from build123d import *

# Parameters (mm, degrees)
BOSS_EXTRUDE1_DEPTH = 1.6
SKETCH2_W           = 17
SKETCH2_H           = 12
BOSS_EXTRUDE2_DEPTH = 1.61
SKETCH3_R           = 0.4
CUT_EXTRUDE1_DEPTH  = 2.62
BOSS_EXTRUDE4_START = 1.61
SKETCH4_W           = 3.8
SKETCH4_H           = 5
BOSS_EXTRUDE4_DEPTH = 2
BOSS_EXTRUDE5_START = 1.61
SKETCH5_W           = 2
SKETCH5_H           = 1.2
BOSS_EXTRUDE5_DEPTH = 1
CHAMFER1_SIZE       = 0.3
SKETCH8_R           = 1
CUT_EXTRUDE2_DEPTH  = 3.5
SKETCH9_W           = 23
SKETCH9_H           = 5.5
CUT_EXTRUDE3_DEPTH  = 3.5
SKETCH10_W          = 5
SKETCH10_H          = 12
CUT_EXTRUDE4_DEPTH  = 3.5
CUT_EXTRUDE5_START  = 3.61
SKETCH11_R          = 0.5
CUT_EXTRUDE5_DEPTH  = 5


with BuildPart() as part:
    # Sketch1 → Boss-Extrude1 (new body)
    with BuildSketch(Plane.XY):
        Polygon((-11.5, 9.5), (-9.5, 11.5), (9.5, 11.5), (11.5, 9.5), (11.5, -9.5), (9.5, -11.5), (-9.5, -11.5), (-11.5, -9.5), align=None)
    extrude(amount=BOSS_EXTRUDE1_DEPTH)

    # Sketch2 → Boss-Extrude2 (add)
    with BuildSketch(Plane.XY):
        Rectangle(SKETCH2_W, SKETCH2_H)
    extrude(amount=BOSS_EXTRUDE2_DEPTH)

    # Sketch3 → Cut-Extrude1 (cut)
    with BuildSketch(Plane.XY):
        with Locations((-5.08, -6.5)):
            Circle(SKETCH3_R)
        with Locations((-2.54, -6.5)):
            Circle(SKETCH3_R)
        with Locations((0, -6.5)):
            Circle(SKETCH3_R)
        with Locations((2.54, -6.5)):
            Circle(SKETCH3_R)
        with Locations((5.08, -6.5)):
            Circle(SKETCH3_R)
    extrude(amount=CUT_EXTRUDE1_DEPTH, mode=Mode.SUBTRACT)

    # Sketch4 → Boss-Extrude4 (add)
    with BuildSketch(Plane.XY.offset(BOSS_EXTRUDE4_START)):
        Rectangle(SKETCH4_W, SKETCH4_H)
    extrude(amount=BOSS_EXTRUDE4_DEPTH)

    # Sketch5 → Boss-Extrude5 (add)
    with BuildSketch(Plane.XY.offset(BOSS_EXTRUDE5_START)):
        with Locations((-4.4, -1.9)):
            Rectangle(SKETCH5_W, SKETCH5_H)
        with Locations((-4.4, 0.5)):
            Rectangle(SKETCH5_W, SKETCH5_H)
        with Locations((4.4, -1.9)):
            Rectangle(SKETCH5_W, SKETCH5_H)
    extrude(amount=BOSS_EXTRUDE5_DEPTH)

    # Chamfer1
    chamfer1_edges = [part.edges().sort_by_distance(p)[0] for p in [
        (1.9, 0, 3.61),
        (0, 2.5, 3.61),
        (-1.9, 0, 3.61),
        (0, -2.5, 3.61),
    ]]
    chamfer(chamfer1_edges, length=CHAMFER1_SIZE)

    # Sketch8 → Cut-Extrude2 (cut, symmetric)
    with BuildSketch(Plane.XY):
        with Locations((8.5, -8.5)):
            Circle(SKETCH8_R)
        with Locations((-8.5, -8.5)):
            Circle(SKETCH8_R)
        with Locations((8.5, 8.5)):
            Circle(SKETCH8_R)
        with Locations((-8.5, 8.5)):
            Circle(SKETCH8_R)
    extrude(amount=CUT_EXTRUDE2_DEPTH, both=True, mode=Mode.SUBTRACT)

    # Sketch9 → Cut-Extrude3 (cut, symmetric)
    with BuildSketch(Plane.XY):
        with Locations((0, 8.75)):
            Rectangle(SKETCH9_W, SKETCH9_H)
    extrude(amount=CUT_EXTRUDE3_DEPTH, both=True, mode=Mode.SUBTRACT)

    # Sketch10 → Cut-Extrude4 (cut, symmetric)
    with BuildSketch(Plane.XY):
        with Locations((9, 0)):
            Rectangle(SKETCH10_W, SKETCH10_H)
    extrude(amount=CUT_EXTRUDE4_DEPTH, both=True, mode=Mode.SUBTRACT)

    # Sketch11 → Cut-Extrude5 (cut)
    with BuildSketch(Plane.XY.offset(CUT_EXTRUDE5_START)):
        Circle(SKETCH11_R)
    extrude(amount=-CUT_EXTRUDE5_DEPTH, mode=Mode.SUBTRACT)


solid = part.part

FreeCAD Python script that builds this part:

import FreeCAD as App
import Part
import Sketcher
Q = App.Units.Quantity


def edges_at(feature, points):
    """Names of the edges that pass closest to the given points."""
    edges = feature.Shape.Edges
    near = lambda p: min(range(len(edges)), key=lambda i: edges[i].distToShape(Part.Vertex(*p))[0])
    return sorted({f"Edge{near(p) + 1}" for p in points})

doc = App.newDocument("Part")
body = doc.addObject("PartDesign::Body", "Body")

sketch1 = body.newObject("Sketcher::SketchObject", "Sketch")
sketch1.AttachmentSupport = (doc.getObject("XY_Plane"), [""])
sketch1.MapMode = "FlatFace"
sketch1.addGeometry(Part.LineSegment(App.Vector(-9.5, 11.5, 0), App.Vector(-11.5, 9.5, 0)), False)
sketch1.addGeometry(Part.LineSegment(App.Vector(-11.5, 9.5, 0), App.Vector(-11.5, -9.5, 0)), False)
sketch1.addGeometry(Part.LineSegment(App.Vector(-11.5, -9.5, 0), App.Vector(-9.5, -11.5, 0)), False)
sketch1.addGeometry(Part.LineSegment(App.Vector(-9.5, -11.5, 0), App.Vector(9.5, -11.5, 0)), False)
sketch1.addGeometry(Part.LineSegment(App.Vector(9.5, -11.5, 0), App.Vector(11.5, -9.5, 0)), False)
sketch1.addGeometry(Part.LineSegment(App.Vector(11.5, -9.5, 0), App.Vector(11.5, 9.5, 0)), False)
sketch1.addGeometry(Part.LineSegment(App.Vector(11.5, 9.5, 0), App.Vector(9.5, 11.5, 0)), False)
sketch1.addGeometry(Part.LineSegment(App.Vector(9.5, 11.5, 0), App.Vector(-9.5, 11.5, 0)), False)
sketch1.addConstraint(Sketcher.Constraint("Coincident", 0, 2, 1, 1))
sketch1.addConstraint(Sketcher.Constraint("Coincident", 1, 2, 2, 1))
sketch1.addConstraint(Sketcher.Constraint("Coincident", 2, 2, 3, 1))
sketch1.addConstraint(Sketcher.Constraint("Coincident", 3, 2, 4, 1))
sketch1.addConstraint(Sketcher.Constraint("Coincident", 4, 2, 5, 1))
sketch1.addConstraint(Sketcher.Constraint("Coincident", 5, 2, 6, 1))
sketch1.addConstraint(Sketcher.Constraint("Coincident", 6, 2, 7, 1))
sketch1.addConstraint(Sketcher.Constraint("Coincident", 7, 2, 0, 1))
sketch1.addConstraint(Sketcher.Constraint("Vertical", 1))
sketch1.addConstraint(Sketcher.Constraint("Horizontal", 3))
sketch1.addConstraint(Sketcher.Constraint("Vertical", 5))
sketch1.addConstraint(Sketcher.Constraint("Horizontal", 7))
sketch1.addConstraint(Sketcher.Constraint("Symmetric", 0, 2, 4, 2, -1, 1))
sketch1.addConstraint(Sketcher.Constraint("Symmetric", 2, 2, 6, 2, -1, 1))
sketch1.addConstraint(Sketcher.Constraint("Perpendicular", 0, 2))
sketch1.addConstraint(Sketcher.Constraint("Perpendicular", 2, 4))
sketch1.addConstraint(Sketcher.Constraint("Perpendicular", 4, 6))
sketch1.addConstraint(Sketcher.Constraint("Horizontal", 1, 2, 4, 2))
sketch1.addConstraint(Sketcher.Constraint("Vertical", 3, 2, 6, 2))
sketch1.addConstraint(Sketcher.Constraint("Equal", 7, 1))
sketch1.addConstraint(Sketcher.Constraint("DistanceX", 3, 1, 3, 2, Q("19 mm")))
sketch1.addConstraint(Sketcher.Constraint("DistanceX", 1, 2, 2, 2, Q("2 mm")))
pad1 = body.newObject("PartDesign::Pad", "Pad")
pad1.Profile = sketch1
pad1.Length = 1.6

sketch2 = body.newObject("Sketcher::SketchObject", "Sketch001")
sketch2.AttachmentSupport = (doc.getObject("XY_Plane"), [""])
sketch2.MapMode = "FlatFace"
sketch2.addGeometry(Part.LineSegment(App.Vector(-8, 6, 0), App.Vector(-8, -6, 0)), False)
sketch2.addGeometry(Part.LineSegment(App.Vector(-8, -6, 0), App.Vector(8, -6, 0)), False)
sketch2.addGeometry(Part.LineSegment(App.Vector(8, -6, 0), App.Vector(8, 6, 0)), False)
sketch2.addGeometry(Part.LineSegment(App.Vector(8, 6, 0), App.Vector(-8, 6, 0)), False)
sketch2.addConstraint(Sketcher.Constraint("Coincident", 0, 2, 1, 1))
sketch2.addConstraint(Sketcher.Constraint("Coincident", 1, 2, 2, 1))
sketch2.addConstraint(Sketcher.Constraint("Coincident", 2, 2, 3, 1))
sketch2.addConstraint(Sketcher.Constraint("Coincident", 3, 2, 0, 1))
sketch2.addConstraint(Sketcher.Constraint("Vertical", 0))
sketch2.addConstraint(Sketcher.Constraint("Horizontal", 1))
sketch2.addConstraint(Sketcher.Constraint("Vertical", 2))
sketch2.addConstraint(Sketcher.Constraint("Horizontal", 3))
sketch2.addConstraint(Sketcher.Constraint("Symmetric", 0, 2, 2, 2, -1, 1))
sketch2.addConstraint(Sketcher.Constraint("DistanceX", 1, 1, 1, 2, Q("17 mm")))
sketch2.addConstraint(Sketcher.Constraint("DistanceY", 0, 2, 0, 1, Q("12 mm")))
pad2 = body.newObject("PartDesign::Pad", "Pad001")
pad2.Profile = sketch2
pad2.Length = 1.61

sketch3 = body.newObject("Sketcher::SketchObject", "Sketch002")
sketch3.AttachmentSupport = (doc.getObject("XY_Plane"), [""])
sketch3.MapMode = "FlatFace"
sketch3.addGeometry(Part.Circle(App.Vector(-5.08, -6.5, 0), App.Vector(0, 0, 1), 0.4), False)
sketch3.addGeometry(Part.Circle(App.Vector(-2.54, -6.5, 0), App.Vector(0, 0, 1), 0.4), False)
sketch3.addGeometry(Part.Circle(App.Vector(0, -6.5, 0), App.Vector(0, 0, 1), 0.4), False)
sketch3.addGeometry(Part.Circle(App.Vector(2.54, -6.5, 0), App.Vector(0, 0, 1), 0.4), False)
sketch3.addGeometry(Part.Circle(App.Vector(5.08, -6.5, 0), App.Vector(0, 0, 1), 0.4), False)
sketch3.addConstraint(Sketcher.Constraint("Equal", 0, 1))
sketch3.addConstraint(Sketcher.Constraint("Equal", 1, 2))
sketch3.addConstraint(Sketcher.Constraint("Equal", 2, 3))
sketch3.addConstraint(Sketcher.Constraint("Equal", 3, 4))
sketch3.addConstraint(Sketcher.Constraint("Symmetric", 1, 3, 3, 3, -2))
sketch3.addConstraint(Sketcher.Constraint("Symmetric", 0, 3, 4, 3, -2))
sketch3.addConstraint(Sketcher.Constraint("PointOnObject", 2, 3, -2))
sketch3.addConstraint(Sketcher.Constraint("Horizontal", 0, 3, 1, 3))
sketch3.addConstraint(Sketcher.Constraint("Horizontal", 1, 3, 2, 3))
sketch3.addConstraint(Sketcher.Constraint("Diameter", 0, Q("0.8 mm")))
sketch3.addConstraint(Sketcher.Constraint("DistanceY", 0, 3, -1, 1, Q("6.5 mm")))
sketch3.addConstraint(Sketcher.Constraint("DistanceX", 0, 3, -1, 1, Q("5.08 mm")))
sketch3.addConstraint(Sketcher.Constraint("DistanceX", 1, 3, -1, 1, Q("2.54 mm")))
pocket1 = body.newObject("PartDesign::Pocket", "Pocket")
pocket1.Profile = sketch3
pocket1.Length = 2.62
pocket1.Reversed = True

sketch4 = body.newObject("Sketcher::SketchObject", "Sketch003")
sketch4.AttachmentSupport = (doc.getObject("XY_Plane"), [""])
sketch4.MapMode = "FlatFace"
sketch4.AttachmentOffset = App.Placement(App.Vector(0, 0, 1.61), App.Rotation())
sketch4.addGeometry(Part.LineSegment(App.Vector(-1.9, 2.5, 0), App.Vector(-1.9, -2.5, 0)), False)
sketch4.addGeometry(Part.LineSegment(App.Vector(-1.9, -2.5, 0), App.Vector(1.9, -2.5, 0)), False)
sketch4.addGeometry(Part.LineSegment(App.Vector(1.9, -2.5, 0), App.Vector(1.9, 2.5, 0)), False)
sketch4.addGeometry(Part.LineSegment(App.Vector(1.9, 2.5, 0), App.Vector(-1.9, 2.5, 0)), False)
sketch4.addConstraint(Sketcher.Constraint("Coincident", 0, 2, 1, 1))
sketch4.addConstraint(Sketcher.Constraint("Coincident", 1, 2, 2, 1))
sketch4.addConstraint(Sketcher.Constraint("Coincident", 2, 2, 3, 1))
sketch4.addConstraint(Sketcher.Constraint("Coincident", 3, 2, 0, 1))
sketch4.addConstraint(Sketcher.Constraint("Vertical", 0))
sketch4.addConstraint(Sketcher.Constraint("Horizontal", 1))
sketch4.addConstraint(Sketcher.Constraint("Vertical", 2))
sketch4.addConstraint(Sketcher.Constraint("Horizontal", 3))
sketch4.addConstraint(Sketcher.Constraint("Symmetric", 0, 2, 2, 2, -1, 1))
sketch4.addConstraint(Sketcher.Constraint("DistanceY", 0, 2, 0, 1, Q("5 mm")))
sketch4.addConstraint(Sketcher.Constraint("DistanceX", 1, 1, 1, 2, Q("3.8 mm")))
pad3 = body.newObject("PartDesign::Pad", "Pad002")
pad3.Profile = sketch4
pad3.Length = 2

sketch5 = body.newObject("Sketcher::SketchObject", "Sketch004")
sketch5.AttachmentSupport = (doc.getObject("XY_Plane"), [""])
sketch5.MapMode = "FlatFace"
sketch5.AttachmentOffset = App.Placement(App.Vector(0, 0, 1.61), App.Rotation())
sketch5.addGeometry(Part.LineSegment(App.Vector(-5.4, -1.3, 0), App.Vector(-5.4, -2.5, 0)), False)
sketch5.addGeometry(Part.LineSegment(App.Vector(-5.4, -2.5, 0), App.Vector(-3.4, -2.5, 0)), False)
sketch5.addGeometry(Part.LineSegment(App.Vector(-3.4, -2.5, 0), App.Vector(-3.4, -1.3, 0)), False)
sketch5.addGeometry(Part.LineSegment(App.Vector(-3.4, -1.3, 0), App.Vector(-5.4, -1.3, 0)), False)
sketch5.addGeometry(Part.LineSegment(App.Vector(-5.4, 1.1, 0), App.Vector(-5.4, -0.1, 0)), False)
sketch5.addGeometry(Part.LineSegment(App.Vector(-5.4, -0.1, 0), App.Vector(-3.4, -0.1, 0)), False)
sketch5.addGeometry(Part.LineSegment(App.Vector(-3.4, -0.1, 0), App.Vector(-3.4, 1.1, 0)), False)
sketch5.addGeometry(Part.LineSegment(App.Vector(-3.4, 1.1, 0), App.Vector(-5.4, 1.1, 0)), False)
sketch5.addGeometry(Part.LineSegment(App.Vector(3.4, -1.3, 0), App.Vector(3.4, -2.5, 0)), False)
sketch5.addGeometry(Part.LineSegment(App.Vector(3.4, -2.5, 0), App.Vector(5.4, -2.5, 0)), False)
sketch5.addGeometry(Part.LineSegment(App.Vector(5.4, -2.5, 0), App.Vector(5.4, -1.3, 0)), False)
sketch5.addGeometry(Part.LineSegment(App.Vector(5.4, -1.3, 0), App.Vector(3.4, -1.3, 0)), False)
sketch5.addConstraint(Sketcher.Constraint("Coincident", 0, 2, 1, 1))
sketch5.addConstraint(Sketcher.Constraint("Coincident", 1, 2, 2, 1))
sketch5.addConstraint(Sketcher.Constraint("Coincident", 2, 2, 3, 1))
sketch5.addConstraint(Sketcher.Constraint("Coincident", 3, 2, 0, 1))
sketch5.addConstraint(Sketcher.Constraint("Coincident", 4, 2, 5, 1))
sketch5.addConstraint(Sketcher.Constraint("Coincident", 5, 2, 6, 1))
sketch5.addConstraint(Sketcher.Constraint("Coincident", 6, 2, 7, 1))
sketch5.addConstraint(Sketcher.Constraint("Coincident", 7, 2, 4, 1))
sketch5.addConstraint(Sketcher.Constraint("Coincident", 8, 2, 9, 1))
sketch5.addConstraint(Sketcher.Constraint("Coincident", 9, 2, 10, 1))
sketch5.addConstraint(Sketcher.Constraint("Coincident", 10, 2, 11, 1))
sketch5.addConstraint(Sketcher.Constraint("Coincident", 11, 2, 8, 1))
sketch5.addConstraint(Sketcher.Constraint("Vertical", 0))
sketch5.addConstraint(Sketcher.Constraint("Horizontal", 1))
sketch5.addConstraint(Sketcher.Constraint("Vertical", 2))
sketch5.addConstraint(Sketcher.Constraint("Horizontal", 3))
sketch5.addConstraint(Sketcher.Constraint("Vertical", 4))
sketch5.addConstraint(Sketcher.Constraint("Horizontal", 5))
sketch5.addConstraint(Sketcher.Constraint("Vertical", 6))
sketch5.addConstraint(Sketcher.Constraint("Horizontal", 7))
sketch5.addConstraint(Sketcher.Constraint("Vertical", 8))
sketch5.addConstraint(Sketcher.Constraint("Horizontal", 9))
sketch5.addConstraint(Sketcher.Constraint("Vertical", 10))
sketch5.addConstraint(Sketcher.Constraint("Horizontal", 11))
sketch5.addConstraint(Sketcher.Constraint("Symmetric", 1, 2, 8, 2, -2))
sketch5.addConstraint(Sketcher.Constraint("Symmetric", 3, 2, 10, 2, -2))
sketch5.addConstraint(Sketcher.Constraint("Vertical", 3, 2, 4, 2))
sketch5.addConstraint(Sketcher.Constraint("Vertical", 2, 2, 5, 2))
sketch5.addConstraint(Sketcher.Constraint("Equal", 2, 4))
sketch5.addConstraint(Sketcher.Constraint("DistanceX", 1, 1, 1, 2, Q("2 mm")))
sketch5.addConstraint(Sketcher.Constraint("DistanceY", 0, 2, 0, 1, Q("1.2 mm")))
sketch5.addConstraint(Sketcher.Constraint("DistanceX", 0, 2, -1, 1, Q("5.4 mm")))
sketch5.addConstraint(Sketcher.Constraint("DistanceY", 0, 2, -1, 1, Q("2.5 mm")))
sketch5.addConstraint(Sketcher.Constraint("DistanceY", 4, 2, -1, 1, Q("0.1 mm")))
pad4 = body.newObject("PartDesign::Pad", "Pad003")
pad4.Profile = sketch5
pad4.Length = 1
doc.recompute()

chamfer = body.newObject("PartDesign::Chamfer", "Chamfer")
chamfer.Base = (pad4, edges_at(pad4, [
    (1.9, 0, 3.61),
    (0, 2.5, 3.61),
    (-1.9, 0, 3.61),
    (0, -2.5, 3.61),
]))
chamfer.Size = 0.3

sketch6 = body.newObject("Sketcher::SketchObject", "Sketch005")
sketch6.AttachmentSupport = (doc.getObject("XY_Plane"), [""])
sketch6.MapMode = "FlatFace"
sketch6.addGeometry(Part.Circle(App.Vector(8.5, -8.5, 0), App.Vector(0, 0, 1), 1), False)
sketch6.addGeometry(Part.Circle(App.Vector(-8.5, -8.5, 0), App.Vector(0, 0, 1), 1), False)
sketch6.addGeometry(Part.Circle(App.Vector(8.5, 8.5, 0), App.Vector(0, 0, 1), 1), False)
sketch6.addGeometry(Part.Circle(App.Vector(-8.5, 8.5, 0), App.Vector(0, 0, 1), 1), False)
sketch6.addConstraint(Sketcher.Constraint("Equal", 0, 1))
sketch6.addConstraint(Sketcher.Constraint("Equal", 1, 2))
sketch6.addConstraint(Sketcher.Constraint("Equal", 2, 3))
sketch6.addConstraint(Sketcher.Constraint("Symmetric", 1, 3, 2, 3, -1, 1))
sketch6.addConstraint(Sketcher.Constraint("Symmetric", 0, 3, 3, 3, -1, 1))
sketch6.addConstraint(Sketcher.Constraint("Symmetric", 0, 3, 1, 3, -2))
sketch6.addConstraint(Sketcher.Constraint("Diameter", 0, Q("2 mm")))
sketch6.addConstraint(Sketcher.Constraint("DistanceX", 1, 3, 0, 3, Q("17 mm")))
sketch6.addConstraint(Sketcher.Constraint("DistanceY", 0, 3, 2, 3, Q("17 mm")))
pocket2 = body.newObject("PartDesign::Pocket", "Pocket001")
pocket2.Profile = sketch6
pocket2.Length = 7
pocket2.Midplane = True

sketch7 = body.newObject("Sketcher::SketchObject", "Sketch006")
sketch7.AttachmentSupport = (doc.getObject("XY_Plane"), [""])
sketch7.MapMode = "FlatFace"
sketch7.addGeometry(Part.LineSegment(App.Vector(-12, 12, 0), App.Vector(-12, 6, 0)), False)
sketch7.addGeometry(Part.LineSegment(App.Vector(-12, 6, 0), App.Vector(12, 6, 0)), False)
sketch7.addGeometry(Part.LineSegment(App.Vector(12, 6, 0), App.Vector(12, 12, 0)), False)
sketch7.addGeometry(Part.LineSegment(App.Vector(12, 12, 0), App.Vector(-12, 12, 0)), False)
sketch7.addConstraint(Sketcher.Constraint("Coincident", 0, 2, 1, 1))
sketch7.addConstraint(Sketcher.Constraint("Coincident", 1, 2, 2, 1))
sketch7.addConstraint(Sketcher.Constraint("Coincident", 2, 2, 3, 1))
sketch7.addConstraint(Sketcher.Constraint("Coincident", 3, 2, 0, 1))
sketch7.addConstraint(Sketcher.Constraint("Vertical", 0))
sketch7.addConstraint(Sketcher.Constraint("Horizontal", 1))
sketch7.addConstraint(Sketcher.Constraint("Vertical", 2))
sketch7.addConstraint(Sketcher.Constraint("Horizontal", 3))
sketch7.addConstraint(Sketcher.Constraint("DistanceX", 1, 1, 1, 2, Q("23 mm")))
sketch7.addConstraint(Sketcher.Constraint("DistanceY", 0, 2, 0, 1, Q("5.5 mm")))
sketch7.addConstraint(Sketcher.Constraint("DistanceY", -1, 1, 0, 2, Q("6 mm")))
sketch7.addConstraint(Sketcher.Constraint("DistanceX", 0, 2, -1, 1, Q("11.5 mm")))
pocket3 = body.newObject("PartDesign::Pocket", "Pocket002")
pocket3.Profile = sketch7
pocket3.Length = 7
pocket3.Midplane = True

sketch8 = body.newObject("Sketcher::SketchObject", "Sketch007")
sketch8.AttachmentSupport = (doc.getObject("XY_Plane"), [""])
sketch8.MapMode = "FlatFace"
sketch8.addGeometry(Part.LineSegment(App.Vector(6, 6, 0), App.Vector(6, -6, 0)), False)
sketch8.addGeometry(Part.LineSegment(App.Vector(6, -6, 0), App.Vector(12, -6, 0)), False)
sketch8.addGeometry(Part.LineSegment(App.Vector(12, -6, 0), App.Vector(12, 6, 0)), False)
sketch8.addGeometry(Part.LineSegment(App.Vector(12, 6, 0), App.Vector(6, 6, 0)), False)
sketch8.addConstraint(Sketcher.Constraint("Coincident", 0, 2, 1, 1))
sketch8.addConstraint(Sketcher.Constraint("Coincident", 1, 2, 2, 1))
sketch8.addConstraint(Sketcher.Constraint("Coincident", 2, 2, 3, 1))
sketch8.addConstraint(Sketcher.Constraint("Coincident", 3, 2, 0, 1))
sketch8.addConstraint(Sketcher.Constraint("Vertical", 0))
sketch8.addConstraint(Sketcher.Constraint("Horizontal", 1))
sketch8.addConstraint(Sketcher.Constraint("Vertical", 2))
sketch8.addConstraint(Sketcher.Constraint("Horizontal", 3))
sketch8.addConstraint(Sketcher.Constraint("DistanceX", 1, 1, 1, 2, Q("5 mm")))
sketch8.addConstraint(Sketcher.Constraint("DistanceY", 0, 2, 0, 1, Q("12 mm")))
sketch8.addConstraint(Sketcher.Constraint("DistanceY", 0, 2, -1, 1, Q("6 mm")))
sketch8.addConstraint(Sketcher.Constraint("DistanceX", -1, 1, 0, 2, Q("6.5 mm")))
pocket4 = body.newObject("PartDesign::Pocket", "Pocket003")
pocket4.Profile = sketch8
pocket4.Length = 7
pocket4.Midplane = True

sketch9 = body.newObject("Sketcher::SketchObject", "Sketch008")
sketch9.AttachmentSupport = (doc.getObject("XY_Plane"), [""])
sketch9.MapMode = "FlatFace"
sketch9.AttachmentOffset = App.Placement(App.Vector(0, 0, 3.61), App.Rotation())
sketch9.addGeometry(Part.Circle(App.Vector(0, 0, 0), App.Vector(0, 0, 1), 0.5), False)
sketch9.addConstraint(Sketcher.Constraint("Coincident", 0, 3, -1, 1))
sketch9.addConstraint(Sketcher.Constraint("Diameter", 0, Q("1 mm")))
pocket5 = body.newObject("PartDesign::Pocket", "Pocket004")
pocket5.Profile = sketch9
pocket5.Length = 5

doc.recompute()
